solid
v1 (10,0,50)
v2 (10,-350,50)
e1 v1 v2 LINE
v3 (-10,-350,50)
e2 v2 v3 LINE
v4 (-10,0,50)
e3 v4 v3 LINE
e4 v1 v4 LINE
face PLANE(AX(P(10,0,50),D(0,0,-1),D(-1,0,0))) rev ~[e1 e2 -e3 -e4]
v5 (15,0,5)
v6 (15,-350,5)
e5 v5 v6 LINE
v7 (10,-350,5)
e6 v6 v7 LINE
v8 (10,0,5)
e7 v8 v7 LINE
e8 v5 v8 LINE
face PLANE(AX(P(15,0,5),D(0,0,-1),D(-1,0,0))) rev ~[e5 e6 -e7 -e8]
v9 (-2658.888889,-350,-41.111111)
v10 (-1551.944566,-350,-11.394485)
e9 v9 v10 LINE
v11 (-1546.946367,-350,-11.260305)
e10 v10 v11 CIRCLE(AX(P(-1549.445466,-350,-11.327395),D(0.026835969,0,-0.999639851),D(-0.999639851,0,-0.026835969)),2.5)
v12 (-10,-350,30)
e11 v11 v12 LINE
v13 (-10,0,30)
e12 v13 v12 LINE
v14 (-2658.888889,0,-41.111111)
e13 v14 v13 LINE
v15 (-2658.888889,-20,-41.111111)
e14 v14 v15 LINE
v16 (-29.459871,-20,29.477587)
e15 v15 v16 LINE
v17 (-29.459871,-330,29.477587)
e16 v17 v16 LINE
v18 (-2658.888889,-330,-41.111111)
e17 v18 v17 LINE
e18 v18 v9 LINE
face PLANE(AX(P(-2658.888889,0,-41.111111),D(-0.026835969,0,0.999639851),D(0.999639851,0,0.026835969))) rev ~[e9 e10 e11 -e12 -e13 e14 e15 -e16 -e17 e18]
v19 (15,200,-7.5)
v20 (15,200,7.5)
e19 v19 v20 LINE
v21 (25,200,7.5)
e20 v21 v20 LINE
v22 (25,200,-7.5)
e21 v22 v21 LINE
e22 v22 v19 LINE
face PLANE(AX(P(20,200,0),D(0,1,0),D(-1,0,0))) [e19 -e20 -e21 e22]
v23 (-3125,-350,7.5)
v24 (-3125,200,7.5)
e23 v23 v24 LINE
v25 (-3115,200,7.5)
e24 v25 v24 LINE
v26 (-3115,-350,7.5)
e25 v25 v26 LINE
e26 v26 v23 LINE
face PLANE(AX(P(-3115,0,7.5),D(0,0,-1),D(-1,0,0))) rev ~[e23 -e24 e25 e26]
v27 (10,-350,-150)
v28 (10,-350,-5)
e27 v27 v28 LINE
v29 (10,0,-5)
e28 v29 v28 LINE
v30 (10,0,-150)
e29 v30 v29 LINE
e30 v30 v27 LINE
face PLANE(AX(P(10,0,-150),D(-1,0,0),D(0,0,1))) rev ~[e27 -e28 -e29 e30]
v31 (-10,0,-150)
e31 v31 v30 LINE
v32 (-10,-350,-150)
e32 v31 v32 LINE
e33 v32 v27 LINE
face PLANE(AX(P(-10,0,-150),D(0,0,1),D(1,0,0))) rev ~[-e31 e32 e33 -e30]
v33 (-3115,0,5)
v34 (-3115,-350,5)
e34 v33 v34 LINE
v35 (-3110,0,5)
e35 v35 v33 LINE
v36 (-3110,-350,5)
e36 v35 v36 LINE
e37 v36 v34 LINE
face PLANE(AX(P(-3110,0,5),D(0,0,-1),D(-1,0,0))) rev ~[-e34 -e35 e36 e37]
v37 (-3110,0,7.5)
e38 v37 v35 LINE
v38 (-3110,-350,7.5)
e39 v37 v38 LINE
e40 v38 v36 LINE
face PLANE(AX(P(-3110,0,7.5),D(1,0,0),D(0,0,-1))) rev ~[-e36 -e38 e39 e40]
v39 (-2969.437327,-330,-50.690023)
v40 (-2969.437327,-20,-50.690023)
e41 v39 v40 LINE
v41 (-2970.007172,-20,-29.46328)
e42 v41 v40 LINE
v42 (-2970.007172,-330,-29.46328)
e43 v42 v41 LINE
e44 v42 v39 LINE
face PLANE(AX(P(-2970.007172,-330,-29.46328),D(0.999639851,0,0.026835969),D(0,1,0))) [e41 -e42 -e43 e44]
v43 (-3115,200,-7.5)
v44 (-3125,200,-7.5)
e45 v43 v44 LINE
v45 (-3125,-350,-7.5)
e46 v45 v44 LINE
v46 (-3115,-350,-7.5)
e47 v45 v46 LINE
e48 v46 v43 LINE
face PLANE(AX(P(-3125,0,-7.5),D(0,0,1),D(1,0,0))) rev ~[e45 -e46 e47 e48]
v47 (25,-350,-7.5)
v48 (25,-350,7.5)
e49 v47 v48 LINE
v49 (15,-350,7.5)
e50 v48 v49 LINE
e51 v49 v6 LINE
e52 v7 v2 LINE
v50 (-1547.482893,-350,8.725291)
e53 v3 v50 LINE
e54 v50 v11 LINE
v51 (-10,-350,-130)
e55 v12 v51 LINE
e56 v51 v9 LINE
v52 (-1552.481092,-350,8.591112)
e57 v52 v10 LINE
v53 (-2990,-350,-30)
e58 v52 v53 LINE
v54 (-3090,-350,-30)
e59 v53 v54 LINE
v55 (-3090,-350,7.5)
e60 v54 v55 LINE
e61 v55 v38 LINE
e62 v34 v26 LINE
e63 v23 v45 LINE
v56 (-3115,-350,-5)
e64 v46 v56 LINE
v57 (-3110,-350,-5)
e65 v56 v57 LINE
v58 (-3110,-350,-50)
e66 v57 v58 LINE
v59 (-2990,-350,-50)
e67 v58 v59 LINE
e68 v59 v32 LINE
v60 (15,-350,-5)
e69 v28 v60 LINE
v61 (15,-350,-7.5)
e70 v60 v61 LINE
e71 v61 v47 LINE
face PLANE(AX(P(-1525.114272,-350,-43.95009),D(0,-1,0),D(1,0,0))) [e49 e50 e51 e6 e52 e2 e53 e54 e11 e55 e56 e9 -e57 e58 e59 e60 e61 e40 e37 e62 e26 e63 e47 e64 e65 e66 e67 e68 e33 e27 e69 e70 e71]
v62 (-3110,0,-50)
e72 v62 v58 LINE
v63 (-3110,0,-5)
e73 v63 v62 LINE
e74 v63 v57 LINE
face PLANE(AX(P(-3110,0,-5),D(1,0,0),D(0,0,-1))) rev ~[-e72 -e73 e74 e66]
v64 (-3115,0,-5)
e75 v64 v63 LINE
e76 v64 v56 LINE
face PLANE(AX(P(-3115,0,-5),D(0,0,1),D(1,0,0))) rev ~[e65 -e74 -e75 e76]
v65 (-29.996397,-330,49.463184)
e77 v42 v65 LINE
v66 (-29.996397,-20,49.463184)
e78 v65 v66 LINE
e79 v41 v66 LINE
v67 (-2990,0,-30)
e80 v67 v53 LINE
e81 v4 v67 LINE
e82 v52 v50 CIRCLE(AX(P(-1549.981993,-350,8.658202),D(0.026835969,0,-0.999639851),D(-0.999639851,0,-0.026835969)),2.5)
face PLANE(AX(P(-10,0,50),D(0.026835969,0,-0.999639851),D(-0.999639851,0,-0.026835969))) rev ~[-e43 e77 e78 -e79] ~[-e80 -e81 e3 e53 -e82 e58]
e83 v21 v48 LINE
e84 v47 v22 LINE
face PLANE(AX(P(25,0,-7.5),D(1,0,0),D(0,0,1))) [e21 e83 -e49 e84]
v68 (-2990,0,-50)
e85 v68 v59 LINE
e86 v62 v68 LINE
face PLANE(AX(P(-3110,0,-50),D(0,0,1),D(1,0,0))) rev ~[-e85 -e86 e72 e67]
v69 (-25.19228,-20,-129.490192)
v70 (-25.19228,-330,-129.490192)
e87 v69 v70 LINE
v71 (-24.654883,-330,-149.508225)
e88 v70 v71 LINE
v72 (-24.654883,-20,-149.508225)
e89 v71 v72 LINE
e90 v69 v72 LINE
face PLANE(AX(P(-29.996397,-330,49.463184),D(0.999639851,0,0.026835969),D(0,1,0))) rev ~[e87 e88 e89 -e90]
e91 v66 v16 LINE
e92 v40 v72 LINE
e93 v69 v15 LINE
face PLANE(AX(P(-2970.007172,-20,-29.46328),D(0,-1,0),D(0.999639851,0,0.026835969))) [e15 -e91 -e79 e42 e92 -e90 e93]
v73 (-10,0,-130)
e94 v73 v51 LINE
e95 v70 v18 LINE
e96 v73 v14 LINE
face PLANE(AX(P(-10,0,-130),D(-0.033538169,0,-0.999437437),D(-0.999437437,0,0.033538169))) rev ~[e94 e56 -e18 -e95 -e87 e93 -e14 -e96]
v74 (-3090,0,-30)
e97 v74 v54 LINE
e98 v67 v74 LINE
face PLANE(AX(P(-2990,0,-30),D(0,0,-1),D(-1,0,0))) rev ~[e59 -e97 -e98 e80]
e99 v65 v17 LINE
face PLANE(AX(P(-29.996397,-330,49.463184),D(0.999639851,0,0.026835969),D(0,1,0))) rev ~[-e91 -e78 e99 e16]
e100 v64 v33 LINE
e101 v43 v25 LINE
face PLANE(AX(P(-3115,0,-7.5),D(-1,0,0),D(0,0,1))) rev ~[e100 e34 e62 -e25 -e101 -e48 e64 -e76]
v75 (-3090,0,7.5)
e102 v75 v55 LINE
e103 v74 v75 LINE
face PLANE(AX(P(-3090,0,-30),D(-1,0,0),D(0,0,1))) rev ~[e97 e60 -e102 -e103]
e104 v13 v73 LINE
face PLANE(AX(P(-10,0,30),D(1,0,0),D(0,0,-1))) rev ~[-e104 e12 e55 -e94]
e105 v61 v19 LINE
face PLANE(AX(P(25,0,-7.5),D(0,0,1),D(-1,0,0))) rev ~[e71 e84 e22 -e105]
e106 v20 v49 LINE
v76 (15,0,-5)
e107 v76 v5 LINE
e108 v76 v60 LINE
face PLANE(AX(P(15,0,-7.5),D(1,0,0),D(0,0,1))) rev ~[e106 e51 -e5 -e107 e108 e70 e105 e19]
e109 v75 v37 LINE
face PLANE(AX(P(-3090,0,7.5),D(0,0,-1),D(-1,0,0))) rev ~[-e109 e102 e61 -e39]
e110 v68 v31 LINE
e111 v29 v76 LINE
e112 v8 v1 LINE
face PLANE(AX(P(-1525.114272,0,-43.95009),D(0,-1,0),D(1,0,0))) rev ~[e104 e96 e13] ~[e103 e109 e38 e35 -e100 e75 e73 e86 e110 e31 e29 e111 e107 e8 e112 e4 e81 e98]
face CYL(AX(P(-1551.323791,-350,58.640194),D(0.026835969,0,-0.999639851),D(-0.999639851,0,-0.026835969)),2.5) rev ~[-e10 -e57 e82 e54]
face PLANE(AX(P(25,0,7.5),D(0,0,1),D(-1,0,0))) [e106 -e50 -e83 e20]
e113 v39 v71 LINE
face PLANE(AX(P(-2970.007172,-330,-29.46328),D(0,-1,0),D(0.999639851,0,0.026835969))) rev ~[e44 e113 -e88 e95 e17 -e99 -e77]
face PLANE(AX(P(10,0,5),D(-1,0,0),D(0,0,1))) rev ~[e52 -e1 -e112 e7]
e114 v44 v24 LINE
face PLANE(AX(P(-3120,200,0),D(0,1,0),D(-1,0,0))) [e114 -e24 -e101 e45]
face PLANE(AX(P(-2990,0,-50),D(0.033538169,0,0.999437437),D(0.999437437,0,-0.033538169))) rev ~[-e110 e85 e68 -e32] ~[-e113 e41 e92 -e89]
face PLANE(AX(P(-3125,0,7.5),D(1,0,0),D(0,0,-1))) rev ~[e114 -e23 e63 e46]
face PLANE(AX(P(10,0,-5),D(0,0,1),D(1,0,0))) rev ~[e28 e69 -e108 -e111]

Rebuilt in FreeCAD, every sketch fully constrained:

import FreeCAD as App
import Part
import Sketcher
Q = App.Units.Quantity


def add_polygon(sketch, points):
    """Adds a closed chain of lines whose ends are joined by coincident constraints."""
    first, n = sketch.GeometryCount, len(points)
    for a, b in zip(points, points[1:] + points[:1]):
        sketch.addGeometry(Part.LineSegment(App.Vector(*a, 0), App.Vector(*b, 0)), False)
    for i in range(n):
        sketch.addConstraint(Sketcher.Constraint("Coincident", first + i, 2, first + (i + 1) % n, 1))

doc = App.newDocument("Part")
body = doc.addObject("PartDesign::Body", "Body")

# Sketch on XZ plane
sketch1 = doc.addObject("Sketcher::SketchObject", "Sketch")
body.addObject(sketch1)
sketch1.AttachmentSupport = (doc.XZ_Plane, [""])
sketch1.MapMode = "FlatFace"
add_polygon(sketch1, [(-2990, -50), (-10, -150), (10, -150), (10, -5), (15, -5), (15, -7.5), (25, -7.5), (25, 7.5), (15, 7.5), (15, 5), (10, 5), (10, 50), (-10, 50), (-2990, -30), (-3090, -30), (-3090, 7.5), (-3110, 7.5), (-3110, 5), (-3115, 5), (-3115, 7.5), (-3125, 7.5), (-3125, -7.5), (-3115, -7.5), (-3115, -5), (-3110, -5), (-3110, -50)])  # lines 0-25
add_polygon(sketch1, [(-10, -130), (-2658.9, -41.1), (-10, 30)])  # lines 26-28
sketch1.addConstraint(Sketcher.Constraint("Horizontal", 1))
sketch1.addConstraint(Sketcher.Constraint("Vertical", 2))
sketch1.addConstraint(Sketcher.Constraint("Horizontal", 3))
sketch1.addConstraint(Sketcher.Constraint("Vertical", 4))
sketch1.addConstraint(Sketcher.Constraint("Horizontal", 5))
sketch1.addConstraint(Sketcher.Constraint("Vertical", 6))
sketch1.addConstraint(Sketcher.Constraint("Horizontal", 7))
sketch1.addConstraint(Sketcher.Constraint("Vertical", 8))
sketch1.addConstraint(Sketcher.Constraint("Horizontal", 9))
sketch1.addConstraint(Sketcher.Constraint("Vertical", 10))
sketch1.addConstraint(Sketcher.Constraint("Horizontal", 11))
sketch1.addConstraint(Sketcher.Constraint("Horizontal", 13))
sketch1.addConstraint(Sketcher.Constraint("Vertical", 14))
sketch1.addConstraint(Sketcher.Constraint("Horizontal", 15))
sketch1.addConstraint(Sketcher.Constraint("Vertical", 16))
sketch1.addConstraint(Sketcher.Constraint("Horizontal", 17))
sketch1.addConstraint(Sketcher.Constraint("Vertical", 18))
sketch1.addConstraint(Sketcher.Constraint("Horizontal", 19))
sketch1.addConstraint(Sketcher.Constraint("Vertical", 20))
sketch1.addConstraint(Sketcher.Constraint("Horizontal", 21))
sketch1.addConstraint(Sketcher.Constraint("Vertical", 22))
sketch1.addConstraint(Sketcher.Constraint("Horizontal", 23))
sketch1.addConstraint(Sketcher.Constraint("Vertical", 24))
sketch1.addConstraint(Sketcher.Constraint("Horizontal", 25))
sketch1.addConstraint(Sketcher.Constraint("Vertical", 28))
sketch1.addConstraint(Sketcher.Constraint("Symmetric", 4, 2, 7, 2, -1))
sketch1.addConstraint(Sketcher.Constraint("Symmetric", 2, 2, 9, 2, -1))
sketch1.addConstraint(Sketcher.Constraint("Symmetric", 18, 2, 21, 2, -1))
sketch1.addConstraint(Sketcher.Constraint("Symmetric", 16, 2, 23, 2, -1))
sketch1.addConstraint(Sketcher.Constraint("Parallel", 0, 26))
sketch1.addConstraint(Sketcher.Constraint("Parallel", 12, 27))
sketch1.addConstraint(Sketcher.Constraint("Horizontal", 7, 2, 14, 2))
sketch1.addConstraint(Sketcher.Constraint("Horizontal", 9, 2, 16, 2))
sketch1.addConstraint(Sketcher.Constraint("Horizontal", 15, 2, 18, 2))
sketch1.addConstraint(Sketcher.Constraint("Vertical", 0, 2, 11, 2))
sketch1.addConstraint(Sketcher.Constraint("Vertical", 12, 2, 25, 2))
sketch1.addConstraint(Sketcher.Constraint("Vertical", 11, 2, 27, 2))
sketch1.addConstraint(Sketcher.Constraint("Equal", 11, 15))
sketch1.addConstraint(Sketcher.Constraint("Equal", 9, 17))
sketch1.addConstraint(Sketcher.Constraint("Equal", 7, 19))
sketch1.addConstraint(Sketcher.Constraint("Equal", 10, 24))
sketch1.addConstraint(Sketcher.Constraint("DistanceX", 1, 1, 1, 2, Q("20 mm")))
sketch1.addConstraint(Sketcher.Constraint("DistanceX", 3, 1, 3, 2, Q("5 mm")))
sketch1.addConstraint(Sketcher.Constraint("DistanceX", 5, 1, 5, 2, Q("10 mm")))
sketch1.addConstraint(Sketcher.Constraint("DistanceX", 13, 2, 13, 1, Q("100 mm")))
sketch1.addConstraint(Sketcher.Constraint("DistanceY", 2, 1, 2, 2, Q("145 mm")))
sketch1.addConstraint(Sketcher.Constraint("DistanceY", 6, 1, 6, 2, Q("15 mm")))
sketch1.addConstraint(Sketcher.Constraint("DistanceY", 10, 1, 10, 2, Q("45 mm")))
sketch1.addConstraint(Sketcher.Constraint("DistanceY", 28, 2, 28, 1, Q("160 mm")))
sketch1.addConstraint(Sketcher.Constraint("DistanceY", 4, 2, 4, 1, Q("2.5 mm")))
sketch1.addConstraint(Sketcher.Constraint("DistanceY", 14, 1, 14, 2, Q("37.5 mm")))
sketch1.addConstraint(Sketcher.Constraint("DistanceX", 0, 2, -1, 1, Q("10 mm")))
sketch1.addConstraint(Sketcher.Constraint("DistanceX", 12, 2, -1, 1, Q("2990 mm")))
sketch1.addConstraint(Sketcher.Constraint("DistanceY", -1, 1, 27, 2, Q("30 mm")))
pad1 = doc.addObject("PartDesign::Pad", "Pad")
body.addObject(pad1)
pad1.Profile = sketch1
pad1.Length = 350

# Sketch on an angled plane
sketch2 = doc.addObject("Sketcher::SketchObject", "Sketch001")
body.addObject(sketch2)
sketch2.Placement = App.Placement(App.Vector(-1.348517, 0, 50.232255), App.Rotation(App.Vector(0.999639851, 0, 0.026835969), App.Vector(0, 1.000000001, 0), App.Vector(-0.026835969, 0, 0.999639851), "ZXY"))
add_polygon(sketch2, [(-2970, -20), (-2970, -330), (-29, -330), (-29, -20)])  # lines 0-3
sketch2.addConstraint(Sketcher.Constraint("Vertical", 0))
sketch2.addConstraint(Sketcher.Constraint("Horizontal", 1))
sketch2.addConstraint(Sketcher.Constraint("Vertical", 2))
sketch2.addConstraint(Sketcher.Constraint("Horizontal", 3))
sketch2.addConstraint(Sketcher.Constraint("DistanceY", 0, 2, 0, 1, Q("310.000001 mm")))
sketch2.addConstraint(Sketcher.Constraint("DistanceY", 0, 2, -1, 1, Q("330.000001 mm")))
sketch2.addConstraint(Sketcher.Constraint("DistanceX", 1, 2, -1, 1, Q("28.658202 mm")))
sketch2.addConstraint(Sketcher.Constraint("DistanceX", 1, 1, 1, 2, Q("2941.070003 mm")))
pocket1 = doc.addObject("PartDesign::Pocket", "Pocket")
body.addObject(pocket1)
pocket1.Profile = sketch2
pocket1.Length = 250

# Sketch on XZ plane
sketch3 = doc.addObject("Sketcher::SketchObject", "Sketch002")
body.addObject(sketch3)
sketch3.AttachmentSupport = (doc.XZ_Plane, [""])
sketch3.MapMode = "FlatFace"
add_polygon(sketch3, [(25, 8), (25, -8), (15, -8), (15, 8)])  # lines 0-3
add_polygon(sketch3, [(-3115, 8), (-3115, -8), (-3125, -8), (-3125, 8)])  # lines 4-7
sketch3.addConstraint(Sketcher.Constraint("Vertical", 0))
sketch3.addConstraint(Sketcher.Constraint("Horizontal", 1))
sketch3.addConstraint(Sketcher.Constraint("Vertical", 2))
sketch3.addConstraint(Sketcher.Constraint("Horizontal", 3))
sketch3.addConstraint(Sketcher.Constraint("Vertical", 4))
sketch3.addConstraint(Sketcher.Constraint("Horizontal", 5))
sketch3.addConstraint(Sketcher.Constraint("Vertical", 6))
sketch3.addConstraint(Sketcher.Constraint("Horizontal", 7))
sketch3.addConstraint(Sketcher.Constraint("Horizontal", 1, 2, 4, 2))
sketch3.addConstraint(Sketcher.Constraint("Horizontal", 3, 2, 6, 2))
sketch3.addConstraint(Sketcher.Constraint("Equal", 3, 5))
sketch3.addConstraint(Sketcher.Constraint("DistanceX", 1, 2, 1, 1, Q("10 mm")))
sketch3.addConstraint(Sketcher.Constraint("DistanceY", 0, 2, 0, 1, Q("15 mm")))
sketch3.addConstraint(Sketcher.Constraint("DistanceX", -1, 1, 0, 2, Q("25 mm")))
sketch3.addConstraint(Sketcher.Constraint("DistanceX", 4, 2, -1, 1, Q("3115 mm")))
sketch3.addConstraint(Sketcher.Constraint("DistanceY", 0, 2, -1, 1, Q("7.5 mm")))
pad2 = doc.addObject("PartDesign::Pad", "Pad001")
body.addObject(pad2)
pad2.Profile = sketch3
pad2.Length = 200
pad2.Reversed = True

# Sketch on an angled plane
sketch4 = doc.addObject("Sketcher::SketchObject", "Sketch003")
body.addObject(sketch4)
sketch4.Placement = App.Placement(App.Vector(-1.348517, 0, 50.232255), App.Rotation(App.Vector(0.999639851, 0, 0.026835969), App.Vector(0, 1.000000001, 0), App.Vector(-0.026835969, 0, 0.999639851), "ZXY"))
sketch4.addGeometry(Part.Circle(App.Vector(-1549.2, -350, 0), App.Vector(0, 0, 1), 2.5), False)
sketch4.addConstraint(Sketcher.Constraint("Diameter", 0, Q("5 mm")))
sketch4.addConstraint(Sketcher.Constraint("DistanceY", 0, 3, -1, 1, Q("350.000001 mm")))
sketch4.addConstraint(Sketcher.Constraint("DistanceX", 0, 3, -1, 1, Q("1549.191418 mm")))
doc.recompute()
hole = doc.addObject("PartDesign::Hole", "Hole")
body.addObject(hole)
hole.Profile = sketch4
hole.ThreadType = "None"
hole.Diameter = 5
hole.DepthType = "Dimension"
hole.Depth = 50
hole.DrillPoint = "Angled"
hole.DrillPointAngle = 118

doc.recompute()
